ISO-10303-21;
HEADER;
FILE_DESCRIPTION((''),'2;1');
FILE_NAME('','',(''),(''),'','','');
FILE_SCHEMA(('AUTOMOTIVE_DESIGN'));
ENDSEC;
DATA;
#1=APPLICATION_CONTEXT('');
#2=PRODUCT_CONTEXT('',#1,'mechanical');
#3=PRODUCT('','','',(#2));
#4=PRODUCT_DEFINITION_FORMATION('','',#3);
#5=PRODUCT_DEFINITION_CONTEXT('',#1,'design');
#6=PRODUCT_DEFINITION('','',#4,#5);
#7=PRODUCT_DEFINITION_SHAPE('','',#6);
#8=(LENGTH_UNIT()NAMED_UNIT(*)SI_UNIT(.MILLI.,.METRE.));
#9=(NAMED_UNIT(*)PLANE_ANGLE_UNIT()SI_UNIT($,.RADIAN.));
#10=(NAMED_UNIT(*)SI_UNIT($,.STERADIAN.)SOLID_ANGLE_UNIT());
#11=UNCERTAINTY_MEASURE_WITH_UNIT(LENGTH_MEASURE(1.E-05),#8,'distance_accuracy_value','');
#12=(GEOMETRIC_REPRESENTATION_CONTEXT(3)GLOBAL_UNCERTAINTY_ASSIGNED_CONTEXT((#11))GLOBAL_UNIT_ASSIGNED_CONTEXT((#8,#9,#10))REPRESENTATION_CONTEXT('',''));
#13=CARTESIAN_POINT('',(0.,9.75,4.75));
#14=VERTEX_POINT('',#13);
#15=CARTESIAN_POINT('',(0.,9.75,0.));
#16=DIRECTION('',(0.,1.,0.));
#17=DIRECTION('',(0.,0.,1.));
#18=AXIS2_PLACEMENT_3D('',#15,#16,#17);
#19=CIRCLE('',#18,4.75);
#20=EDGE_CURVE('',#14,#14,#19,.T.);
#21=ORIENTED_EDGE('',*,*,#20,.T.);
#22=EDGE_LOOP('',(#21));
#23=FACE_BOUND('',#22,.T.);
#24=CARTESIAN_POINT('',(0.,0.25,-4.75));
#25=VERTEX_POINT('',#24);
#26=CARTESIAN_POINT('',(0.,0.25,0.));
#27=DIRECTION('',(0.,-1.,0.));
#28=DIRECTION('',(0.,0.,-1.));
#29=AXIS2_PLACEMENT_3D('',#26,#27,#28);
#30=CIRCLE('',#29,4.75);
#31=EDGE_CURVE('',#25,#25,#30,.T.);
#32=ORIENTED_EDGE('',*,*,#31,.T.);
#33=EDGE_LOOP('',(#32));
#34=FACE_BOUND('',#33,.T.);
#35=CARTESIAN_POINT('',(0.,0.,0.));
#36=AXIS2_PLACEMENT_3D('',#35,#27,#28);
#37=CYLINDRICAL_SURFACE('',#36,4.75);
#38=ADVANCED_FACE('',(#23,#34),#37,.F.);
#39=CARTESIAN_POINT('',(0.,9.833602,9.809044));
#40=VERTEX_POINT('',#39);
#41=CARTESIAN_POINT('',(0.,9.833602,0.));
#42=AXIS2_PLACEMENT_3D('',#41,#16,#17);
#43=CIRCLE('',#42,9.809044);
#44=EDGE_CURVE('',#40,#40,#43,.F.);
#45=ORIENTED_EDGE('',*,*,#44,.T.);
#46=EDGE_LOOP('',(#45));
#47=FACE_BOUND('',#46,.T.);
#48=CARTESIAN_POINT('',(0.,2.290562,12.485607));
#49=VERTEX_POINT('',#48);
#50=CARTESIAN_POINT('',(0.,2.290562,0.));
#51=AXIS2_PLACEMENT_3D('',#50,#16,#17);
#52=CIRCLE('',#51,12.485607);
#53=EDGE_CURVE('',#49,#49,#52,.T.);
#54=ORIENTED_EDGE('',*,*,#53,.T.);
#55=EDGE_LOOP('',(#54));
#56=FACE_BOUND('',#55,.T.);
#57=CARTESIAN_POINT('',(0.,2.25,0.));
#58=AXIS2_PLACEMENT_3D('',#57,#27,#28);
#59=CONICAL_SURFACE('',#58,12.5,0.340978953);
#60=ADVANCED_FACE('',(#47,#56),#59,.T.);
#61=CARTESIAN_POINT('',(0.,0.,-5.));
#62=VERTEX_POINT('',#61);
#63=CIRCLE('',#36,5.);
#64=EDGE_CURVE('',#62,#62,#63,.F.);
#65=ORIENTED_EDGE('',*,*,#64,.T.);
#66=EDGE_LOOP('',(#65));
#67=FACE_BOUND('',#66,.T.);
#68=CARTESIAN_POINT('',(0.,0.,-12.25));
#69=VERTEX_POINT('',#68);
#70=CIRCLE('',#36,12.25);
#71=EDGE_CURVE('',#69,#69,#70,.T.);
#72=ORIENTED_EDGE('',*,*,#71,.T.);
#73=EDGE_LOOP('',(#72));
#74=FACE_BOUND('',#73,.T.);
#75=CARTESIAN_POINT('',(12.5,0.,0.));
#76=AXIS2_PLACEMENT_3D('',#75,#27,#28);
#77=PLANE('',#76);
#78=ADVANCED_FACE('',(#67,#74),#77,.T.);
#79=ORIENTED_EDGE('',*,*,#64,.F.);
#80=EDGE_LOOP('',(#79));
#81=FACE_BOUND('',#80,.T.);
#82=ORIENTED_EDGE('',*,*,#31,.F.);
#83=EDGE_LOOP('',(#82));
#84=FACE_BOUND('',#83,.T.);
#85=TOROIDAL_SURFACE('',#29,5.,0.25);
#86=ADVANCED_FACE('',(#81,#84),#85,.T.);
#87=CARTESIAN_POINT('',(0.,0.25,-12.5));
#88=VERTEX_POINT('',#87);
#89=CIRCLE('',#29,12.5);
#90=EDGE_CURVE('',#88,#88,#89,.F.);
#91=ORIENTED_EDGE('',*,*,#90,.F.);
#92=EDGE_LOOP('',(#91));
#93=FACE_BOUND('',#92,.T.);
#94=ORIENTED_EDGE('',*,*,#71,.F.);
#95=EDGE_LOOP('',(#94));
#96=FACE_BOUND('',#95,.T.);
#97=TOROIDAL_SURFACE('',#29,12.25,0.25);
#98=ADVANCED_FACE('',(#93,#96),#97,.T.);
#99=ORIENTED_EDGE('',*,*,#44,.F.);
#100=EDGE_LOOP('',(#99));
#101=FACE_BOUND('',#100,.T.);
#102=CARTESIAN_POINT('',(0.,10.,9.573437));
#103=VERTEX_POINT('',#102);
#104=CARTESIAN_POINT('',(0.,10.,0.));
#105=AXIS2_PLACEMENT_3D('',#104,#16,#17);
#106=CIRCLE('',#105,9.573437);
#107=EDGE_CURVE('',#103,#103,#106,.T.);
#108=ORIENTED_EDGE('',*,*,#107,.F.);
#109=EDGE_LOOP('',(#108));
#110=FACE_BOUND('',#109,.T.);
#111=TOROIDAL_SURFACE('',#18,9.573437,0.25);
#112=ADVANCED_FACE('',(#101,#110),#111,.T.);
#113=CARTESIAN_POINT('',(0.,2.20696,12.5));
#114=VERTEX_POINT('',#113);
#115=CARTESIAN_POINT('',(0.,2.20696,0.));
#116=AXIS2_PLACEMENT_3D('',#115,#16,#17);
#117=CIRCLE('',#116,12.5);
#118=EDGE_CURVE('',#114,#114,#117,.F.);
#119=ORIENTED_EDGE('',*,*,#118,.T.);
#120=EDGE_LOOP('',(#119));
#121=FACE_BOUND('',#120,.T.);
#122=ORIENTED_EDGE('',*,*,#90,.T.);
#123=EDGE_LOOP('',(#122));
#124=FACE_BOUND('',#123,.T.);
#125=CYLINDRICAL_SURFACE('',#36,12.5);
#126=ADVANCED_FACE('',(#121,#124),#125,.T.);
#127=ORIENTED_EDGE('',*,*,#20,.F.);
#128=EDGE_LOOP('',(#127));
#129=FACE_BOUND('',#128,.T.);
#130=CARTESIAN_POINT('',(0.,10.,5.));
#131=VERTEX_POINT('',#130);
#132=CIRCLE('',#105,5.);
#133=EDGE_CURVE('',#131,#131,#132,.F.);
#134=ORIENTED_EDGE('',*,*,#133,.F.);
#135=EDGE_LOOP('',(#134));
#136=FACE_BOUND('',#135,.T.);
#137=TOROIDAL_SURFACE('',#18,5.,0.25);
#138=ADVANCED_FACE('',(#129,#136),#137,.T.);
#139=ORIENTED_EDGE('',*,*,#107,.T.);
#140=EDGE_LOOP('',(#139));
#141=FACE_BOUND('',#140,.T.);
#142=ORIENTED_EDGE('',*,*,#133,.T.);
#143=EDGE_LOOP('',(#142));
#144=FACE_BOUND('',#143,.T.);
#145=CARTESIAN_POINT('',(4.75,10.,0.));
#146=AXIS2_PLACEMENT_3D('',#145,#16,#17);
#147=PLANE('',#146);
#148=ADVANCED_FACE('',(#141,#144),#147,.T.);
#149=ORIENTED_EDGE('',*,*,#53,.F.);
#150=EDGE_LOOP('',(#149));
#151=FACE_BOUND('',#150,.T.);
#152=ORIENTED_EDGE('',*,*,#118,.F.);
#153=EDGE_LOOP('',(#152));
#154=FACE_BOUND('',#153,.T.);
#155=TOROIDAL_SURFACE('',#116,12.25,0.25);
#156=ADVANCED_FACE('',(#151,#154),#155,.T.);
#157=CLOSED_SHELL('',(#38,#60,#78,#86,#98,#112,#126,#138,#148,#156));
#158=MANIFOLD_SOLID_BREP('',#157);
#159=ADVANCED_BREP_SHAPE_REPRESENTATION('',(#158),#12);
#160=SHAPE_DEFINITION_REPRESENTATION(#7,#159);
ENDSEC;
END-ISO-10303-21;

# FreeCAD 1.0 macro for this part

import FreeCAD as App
import Part
import Sketcher

V = App.Vector
Q = App.Units.Quantity


def edges_at(feature, points):
    """Names of the edges that pass closest to the given points."""
    edges = feature.Shape.Edges
    near = lambda p: min(range(len(edges)), key=lambda i: edges[i].distToShape(Part.Vertex(*p))[0])
    return sorted({f"Edge{near(p) + 1}" for p in points})


def add_polygon(sketch, points):
    """Adds a closed chain of lines whose ends are joined by coincident constraints."""
    first, n = sketch.GeometryCount, len(points)
    for a, b in zip(points, points[1:] + points[:1]):
        sketch.addGeometry(Part.LineSegment(App.Vector(*a, 0), App.Vector(*b, 0)), False)
    for i in range(n):
        sketch.addConstraint(Sketcher.Constraint("Coincident", first + i, 2, first + (i + 1) % n, 1))

doc = App.newDocument("Part")
body = doc.addObject("PartDesign::Body", "Body")

# Sketch on XY plane
sketch1 = doc.addObject("Sketcher::SketchObject", "Sketch")
body.addObject(sketch1)
sketch1.AttachmentSupport = (doc.XY_Plane, [""])
sketch1.MapMode = "FlatFace"
add_polygon(sketch1, [(9.8, 10), (4.8, 10), (4.8, 0), (12.5, 0), (12.5, 2.2)])  # lines 0-4
sketch1.addConstraint([
    Sketcher.Constraint("Horizontal", 0),
    Sketcher.Constraint("Vertical", 1),
    Sketcher.Constraint("Horizontal", 2),
    Sketcher.Constraint("Vertical", 3),
    Sketcher.Constraint("PointOnObject", 1, 2, -1),
    Sketcher.Constraint("DistanceX", 0, 2, 0, 1, Q("5 mm")),
    Sketcher.Constraint("DistanceY", 1, 2, 1, 1, Q("10 mm")),
    Sketcher.Constraint("DistanceX", 2, 1, 2, 2, Q("7.75 mm")),
    Sketcher.Constraint("DistanceY", 3, 1, 3, 2, Q("2.25 mm")),
    Sketcher.Constraint("DistanceX", -1, 1, 2, 2, Q("12.5 mm")),
])
revolution = doc.addObject("PartDesign::Revolution", "Revolution")
body.addObject(revolution)
revolution.Profile = sketch1
revolution.ReferenceAxis = (sketch1, ["V_Axis"])
revolution.Angle = 360
doc.recompute()

fillet = doc.addObject("PartDesign::Fillet", "Fillet")
body.addObject(fillet)
fillet.Base = (revolution, edges_at(revolution, [
    (-4.75, 0, 0),
    (-12.5, 0, 0),
    (-12.5, 2.25, 0),
    (-9.75, 10, 0),
    (-4.75, 10, 0),
]))
fillet.Radius = 0.25

doc.recompute()
